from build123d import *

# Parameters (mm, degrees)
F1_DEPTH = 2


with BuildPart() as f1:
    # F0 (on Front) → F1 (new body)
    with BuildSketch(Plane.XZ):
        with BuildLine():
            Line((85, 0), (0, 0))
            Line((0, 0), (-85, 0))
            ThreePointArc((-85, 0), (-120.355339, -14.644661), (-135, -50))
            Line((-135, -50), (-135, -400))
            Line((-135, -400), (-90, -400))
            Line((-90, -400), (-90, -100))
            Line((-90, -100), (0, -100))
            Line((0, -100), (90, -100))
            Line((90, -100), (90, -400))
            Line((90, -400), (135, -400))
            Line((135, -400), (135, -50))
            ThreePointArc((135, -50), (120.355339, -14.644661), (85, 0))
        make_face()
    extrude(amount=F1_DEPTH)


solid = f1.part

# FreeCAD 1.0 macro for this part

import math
import FreeCAD as App
import Part
import Sketcher

V = App.Vector

doc = App.newDocument("Part")
body = doc.addObject("PartDesign::Body", "Body")

sketch1 = body.newObject("Sketcher::SketchObject", "Sketch")
sketch1.AttachmentSupport = (doc.getObject("XZ_Plane"), [""])
sketch1.MapMode = "FlatFace"
sketch1.addGeometry([
    Part.LineSegment(V(85, 0, 0), V(-85, 0, 0)),
    Part.ArcOfCircle(Part.Circle(V(-85, -50, 0), V(0, 0, 1), 50), math.radians(90), math.radians(180)),
    Part.LineSegment(V(-135, -50, 0), V(-135, -400, 0)),
    Part.LineSegment(V(-135, -400, 0), V(-90, -400, 0)),
    Part.LineSegment(V(-90, -400, 0), V(-90, -100, 0)),
    Part.LineSegment(V(-90, -100, 0), V(90, -100, 0)),
    Part.LineSegment(V(90, -100, 0), V(90, -400, 0)),
    Part.LineSegment(V(90, -400, 0), V(135, -400, 0)),
    Part.LineSegment(V(135, -400, 0), V(135, -50, 0)),
    Part.ArcOfCircle(Part.Circle(V(85, -50, 0), V(0, 0, 1), 50), math.radians(0), math.radians(90)),
], False)
sketch1.addConstraint([
    Sketcher.Constraint("Tangent", 0, 2, 1, 1),
    Sketcher.Constraint("Tangent", 1, 2, 2, 1),
    Sketcher.Constraint("Coincident", 2, 2, 3, 1),
    Sketcher.Constraint("Coincident", 3, 2, 4, 1),
    Sketcher.Constraint("Coincident", 4, 2, 5, 1),
    Sketcher.Constraint("Coincident", 5, 2, 6, 1),
    Sketcher.Constraint("Coincident", 6, 2, 7, 1),
    Sketcher.Constraint("Coincident", 7, 2, 8, 1),
    Sketcher.Constraint("Tangent", 8, 2, 9, 1),
    Sketcher.Constraint("Tangent", 9, 2, 0, 1),
    Sketcher.Constraint("Horizontal", 0),
    Sketcher.Constraint("Vertical", 2),
    Sketcher.Constraint("Horizontal", 3),
    Sketcher.Constraint("Vertical", 4),
    Sketcher.Constraint("Horizontal", 5),
    Sketcher.Constraint("Vertical", 6),
    Sketcher.Constraint("Horizontal", 7),
    Sketcher.Constraint("Vertical", 8),
    Sketcher.Constraint("Equal", 1, 9),
    Sketcher.Constraint("Symmetric", 0, 2, 9, 2, -1, 1),
    Sketcher.Constraint("Symmetric", 3, 2, 6, 2, -2),
    Sketcher.Constraint("Radius", 1, 50.0),
    Sketcher.Constraint("DistanceX", 0, 2, 0, 1, 170.0),
    Sketcher.Constraint("DistanceX", 3, 1, 3, 2, 45.0),
    Sketcher.Constraint("DistanceY", 2, 2, 2, 1, 350.0),
    Sketcher.Constraint("DistanceY", 4, 1, 4, 2, 300.0),
])
pad1 = body.newObject("PartDesign::Pad", "Pad")
pad1.Profile = sketch1
pad1.Length = 2

doc.recompute()
